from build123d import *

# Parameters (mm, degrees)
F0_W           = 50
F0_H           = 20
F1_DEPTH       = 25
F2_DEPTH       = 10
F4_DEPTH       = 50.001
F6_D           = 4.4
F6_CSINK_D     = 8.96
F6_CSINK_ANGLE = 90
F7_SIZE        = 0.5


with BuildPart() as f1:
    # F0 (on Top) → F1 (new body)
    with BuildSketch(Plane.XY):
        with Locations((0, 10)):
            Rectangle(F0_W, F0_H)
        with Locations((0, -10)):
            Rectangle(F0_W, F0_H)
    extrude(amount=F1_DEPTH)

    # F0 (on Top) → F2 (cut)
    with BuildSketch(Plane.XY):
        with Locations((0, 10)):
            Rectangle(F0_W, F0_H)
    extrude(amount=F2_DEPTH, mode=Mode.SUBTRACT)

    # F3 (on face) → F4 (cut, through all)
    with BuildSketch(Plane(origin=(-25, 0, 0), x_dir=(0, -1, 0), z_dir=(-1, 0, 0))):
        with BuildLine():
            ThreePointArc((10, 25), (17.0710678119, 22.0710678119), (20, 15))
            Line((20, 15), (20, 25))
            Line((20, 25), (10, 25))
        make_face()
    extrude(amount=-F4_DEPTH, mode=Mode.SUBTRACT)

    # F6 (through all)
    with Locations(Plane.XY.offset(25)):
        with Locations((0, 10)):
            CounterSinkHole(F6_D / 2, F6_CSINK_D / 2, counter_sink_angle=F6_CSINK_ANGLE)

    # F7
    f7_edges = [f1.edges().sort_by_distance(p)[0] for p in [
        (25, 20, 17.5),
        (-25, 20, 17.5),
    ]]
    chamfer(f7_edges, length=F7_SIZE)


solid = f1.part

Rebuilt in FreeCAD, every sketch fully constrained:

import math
import FreeCAD as App
import Part
import Sketcher
Q = App.Units.Quantity


def edges_at(feature, points):
    """Names of the edges that pass closest to the given points."""
    edges = feature.Shape.Edges
    near = lambda p: min(range(len(edges)), key=lambda i: edges[i].distToShape(Part.Vertex(*p))[0])
    return sorted({f"Edge{near(p) + 1}" for p in points})


def add_polygon(sketch, points):
    """Adds a closed chain of lines whose ends are joined by coincident constraints."""
    first, n = sketch.GeometryCount, len(points)
    for a, b in zip(points, points[1:] + points[:1]):
        sketch.addGeometry(Part.LineSegment(App.Vector(*a, 0), App.Vector(*b, 0)), False)
    for i in range(n):
        sketch.addConstraint(Sketcher.Constraint("Coincident", first + i, 2, first + (i + 1) % n, 1))

doc = App.newDocument("Part")
body = doc.addObject("PartDesign::Body", "Body")

sketch1 = body.newObject("Sketcher::SketchObject", "Sketch")
sketch1.AttachmentSupport = (doc.getObject("XY_Plane"), [""])
sketch1.MapMode = "FlatFace"
add_polygon(sketch1, [(-25, 20), (-25, -20), (25, -20), (25, 20)])
sketch1.addConstraint(Sketcher.Constraint("Vertical", 0))
sketch1.addConstraint(Sketcher.Constraint("Horizontal", 1))
sketch1.addConstraint(Sketcher.Constraint("Vertical", 2))
sketch1.addConstraint(Sketcher.Constraint("Horizontal", 3))
sketch1.addConstraint(Sketcher.Constraint("Symmetric", 0, 2, 2, 2, -1, 1))
sketch1.addConstraint(Sketcher.Constraint("DistanceX", 1, 1, 1, 2, Q("50 mm")))
sketch1.addConstraint(Sketcher.Constraint("DistanceY", 0, 2, 0, 1, Q("40 mm")))
pad1 = body.newObject("PartDesign::Pad", "Pad")
pad1.Profile = sketch1
pad1.Length = 25

sketch2 = body.newObject("Sketcher::SketchObject", "Sketch001")
sketch2.AttachmentSupport = (doc.getObject("XY_Plane"), [""])
sketch2.MapMode = "FlatFace"
add_polygon(sketch2, [(-25, 20), (-25, 0), (25, 0), (25, 20)])
sketch2.addConstraint(Sketcher.Constraint("Vertical", 0))
sketch2.addConstraint(Sketcher.Constraint("Horizontal", 1))
sketch2.addConstraint(Sketcher.Constraint("Vertical", 2))
sketch2.addConstraint(Sketcher.Constraint("Horizontal", 3))
sketch2.addConstraint(Sketcher.Constraint("Symmetric", 0, 2, 1, 2, -1, 1))
sketch2.addConstraint(Sketcher.Constraint("DistanceX", 1, 1, 1, 2, Q("50 mm")))
sketch2.addConstraint(Sketcher.Constraint("DistanceY", 0, 2, 0, 1, Q("20 mm")))
pocket1 = body.newObject("PartDesign::Pocket", "Pocket")
pocket1.Profile = sketch2
pocket1.Length = 10
pocket1.Reversed = True

sketch3 = body.newObject("Sketcher::SketchObject", "Sketch002")
sketch3.AttachmentSupport = (doc.getObject("YZ_Plane"), [""])
sketch3.MapMode = "FlatFace"
sketch3.AttachmentOffset = App.Placement(App.Vector(0, 0, -25), App.Rotation())
sketch3.addGeometry(Part.ArcOfCircle(Part.Circle(App.Vector(-10, 15, 0), App.Vector(0, 0, 1), 10), math.radians(90), math.radians(180)), False)
sketch3.addGeometry(Part.LineSegment(App.Vector(-20, 15, 0), App.Vector(-20, 25, 0)), False)
sketch3.addGeometry(Part.LineSegment(App.Vector(-20, 25, 0), App.Vector(-10, 25, 0)), False)
sketch3.addConstraint(Sketcher.Constraint("Tangent", 0, 2, 1, 1))
sketch3.addConstraint(Sketcher.Constraint("Coincident", 1, 2, 2, 1))
sketch3.addConstraint(Sketcher.Constraint("Tangent", 2, 2, 0, 1))
sketch3.addConstraint(Sketcher.Constraint("Vertical", 1))
sketch3.addConstraint(Sketcher.Constraint("Horizontal", 2))
sketch3.addConstraint(Sketcher.Constraint("Radius", 0, Q("10 mm")))
sketch3.addConstraint(Sketcher.Constraint("DistanceX", 0, 3, -1, 1, Q("10 mm")))
sketch3.addConstraint(Sketcher.Constraint("DistanceY", -1, 1, 0, 3, Q("15 mm")))
pocket2 = body.newObject("PartDesign::Pocket", "Pocket001")
pocket2.Profile = sketch3
pocket2.Type = "ThroughAll"
pocket2.Reversed = True

sketch4 = body.newObject("Sketcher::SketchObject", "Sketch003")
sketch4.AttachmentSupport = (doc.getObject("XY_Plane"), [""])
sketch4.MapMode = "FlatFace"
sketch4.AttachmentOffset = App.Placement(App.Vector(0, 0, 25), App.Rotation())
sketch4.addGeometry(Part.Circle(App.Vector(0, 10, 0), App.Vector(0, 0, 1), 2.2), False)
sketch4.addConstraint(Sketcher.Constraint("PointOnObject", 0, 3, -2))
sketch4.addConstraint(Sketcher.Constraint("Diameter", 0, Q("4.4 mm")))
sketch4.addConstraint(Sketcher.Constraint("DistanceY", -1, 1, 0, 3, Q("10 mm")))
doc.recompute()
hole = body.newObject("PartDesign::Hole", "Hole")
hole.Profile = sketch4
hole.ThreadType = "None"
hole.Diameter = 4.4
hole.DepthType = "ThroughAll"
hole.HoleCutType = "Countersink"
hole.HoleCutDiameter = 8.96
hole.HoleCutCountersinkAngle = 90
doc.recompute()

chamfer = body.newObject("PartDesign::Chamfer", "Chamfer")
chamfer.Base = (hole, edges_at(hole, [(25, 20, 17.5), (-25, 20, 17.5)]))
chamfer.Size = 0.5

doc.recompute()
